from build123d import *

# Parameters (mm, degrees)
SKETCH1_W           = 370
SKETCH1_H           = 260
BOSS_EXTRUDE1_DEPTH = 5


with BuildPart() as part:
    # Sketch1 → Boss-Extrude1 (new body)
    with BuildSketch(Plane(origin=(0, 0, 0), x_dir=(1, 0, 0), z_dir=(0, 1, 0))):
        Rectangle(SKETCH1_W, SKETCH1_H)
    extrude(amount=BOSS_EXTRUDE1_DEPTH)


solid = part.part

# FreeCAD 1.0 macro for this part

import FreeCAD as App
import Part
import Sketcher

doc = App.newDocument("Part")
body = doc.addObject("PartDesign::Body", "Body")

sketch1 = body.newObject("Sketcher::SketchObject", "Sketch")
sketch1.AttachmentSupport = (doc.getObject("XZ_Plane"), [""])
sketch1.MapMode = "FlatFace"
sketch1.addGeometry(Part.LineSegment(App.Vector(-185, -130, 0), App.Vector(-185, 130, 0)), False)
sketch1.addGeometry(Part.LineSegment(App.Vector(-185, 130, 0), App.Vector(185, 130, 0)), False)
sketch1.addGeometry(Part.LineSegment(App.Vector(185, 130, 0), App.Vector(185, -130, 0)), False)
sketch1.addGeometry(Part.LineSegment(App.Vector(185, -130, 0), App.Vector(-185, -130, 0)), False)
sketch1.addConstraint(Sketcher.Constraint("Coincident", 0, 2, 1, 1))
sketch1.addConstraint(Sketcher.Constraint("Coincident", 1, 2, 2, 1))
sketch1.addConstraint(Sketcher.Constraint("Coincident", 2, 2, 3, 1))
sketch1.addConstraint(Sketcher.Constraint("Coincident", 3, 2, 0, 1))
sketch1.addConstraint(Sketcher.Constraint("Vertical", 0))
sketch1.addConstraint(Sketcher.Constraint("Horizontal", 1))
sketch1.addConstraint(Sketcher.Constraint("Vertical", 2))
sketch1.addConstraint(Sketcher.Constraint("Horizontal", 3))
sketch1.addConstraint(Sketcher.Constraint("Symmetric", 0, 2, 2, 2, -1, 1))
sketch1.addConstraint(Sketcher.Constraint("DistanceX", 1, 1, 1, 2, 370.0))
sketch1.addConstraint(Sketcher.Constraint("DistanceY", 0, 1, 0, 2, 260.0))
pad1 = body.newObject("PartDesign::Pad", "Pad")
pad1.Profile = sketch1
pad1.Length = 5
pad1.Reversed = True

doc.recompute()
